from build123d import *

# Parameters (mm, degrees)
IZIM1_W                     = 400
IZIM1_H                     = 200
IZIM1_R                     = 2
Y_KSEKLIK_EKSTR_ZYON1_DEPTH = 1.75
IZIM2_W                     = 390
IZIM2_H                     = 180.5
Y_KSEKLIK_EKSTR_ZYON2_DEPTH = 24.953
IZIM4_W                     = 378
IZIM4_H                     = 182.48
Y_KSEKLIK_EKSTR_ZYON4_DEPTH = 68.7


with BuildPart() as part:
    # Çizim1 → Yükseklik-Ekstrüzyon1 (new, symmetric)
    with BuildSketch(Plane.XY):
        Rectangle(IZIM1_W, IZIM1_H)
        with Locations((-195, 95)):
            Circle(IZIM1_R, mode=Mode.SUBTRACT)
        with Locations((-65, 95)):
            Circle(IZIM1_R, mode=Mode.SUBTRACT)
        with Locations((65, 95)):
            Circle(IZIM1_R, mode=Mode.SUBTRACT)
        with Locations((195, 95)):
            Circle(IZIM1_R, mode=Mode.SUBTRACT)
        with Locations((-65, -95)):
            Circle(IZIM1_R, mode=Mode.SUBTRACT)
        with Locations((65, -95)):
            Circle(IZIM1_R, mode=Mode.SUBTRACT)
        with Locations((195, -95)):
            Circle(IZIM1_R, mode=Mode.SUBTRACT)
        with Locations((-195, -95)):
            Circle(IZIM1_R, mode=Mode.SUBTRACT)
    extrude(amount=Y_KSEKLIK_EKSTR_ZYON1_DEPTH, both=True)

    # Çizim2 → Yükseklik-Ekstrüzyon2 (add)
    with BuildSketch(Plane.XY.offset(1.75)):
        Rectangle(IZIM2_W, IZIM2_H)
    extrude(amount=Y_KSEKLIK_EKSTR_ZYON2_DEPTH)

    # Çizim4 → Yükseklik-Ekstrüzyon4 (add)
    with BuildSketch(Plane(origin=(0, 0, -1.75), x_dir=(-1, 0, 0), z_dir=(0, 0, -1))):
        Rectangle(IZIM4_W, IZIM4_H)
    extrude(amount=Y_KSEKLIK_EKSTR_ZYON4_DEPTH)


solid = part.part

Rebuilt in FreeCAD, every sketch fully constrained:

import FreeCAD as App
import Part
import Sketcher


def add_polygon(sketch, points):
    """Adds a closed chain of lines whose ends are joined by coincident constraints."""
    first, n = sketch.GeometryCount, len(points)
    for a, b in zip(points, points[1:] + points[:1]):
        sketch.addGeometry(Part.LineSegment(App.Vector(*a, 0), App.Vector(*b, 0)), False)
    for i in range(n):
        sketch.addConstraint(Sketcher.Constraint("Coincident", first + i, 2, first + (i + 1) % n, 1))

doc = App.newDocument("Part")
body = doc.addObject("PartDesign::Body", "Body")

sketch1 = doc.addObject("Sketcher::SketchObject", "Sketch")
body.addObject(sketch1)
sketch1.AttachmentSupport = (doc.XY_Plane, [""])
sketch1.MapMode = "FlatFace"
add_polygon(sketch1, [(-200, 100), (-200, -100), (200, -100), (200, 100)])
sketch1.addGeometry(Part.Circle(App.Vector(-195, -95, 0), App.Vector(0, 0, 1), 2), False)
sketch1.addGeometry(Part.Circle(App.Vector(-65, -95, 0), App.Vector(0, 0, 1), 2), False)
sketch1.addGeometry(Part.Circle(App.Vector(65, -95, 0), App.Vector(0, 0, 1), 2), False)
sketch1.addGeometry(Part.Circle(App.Vector(195, -95, 0), App.Vector(0, 0, 1), 2), False)
sketch1.addGeometry(Part.Circle(App.Vector(-195, 95, 0), App.Vector(0, 0, 1), 2), False)
sketch1.addGeometry(Part.Circle(App.Vector(-65, 95, 0), App.Vector(0, 0, 1), 2), False)
sketch1.addGeometry(Part.Circle(App.Vector(65, 95, 0), App.Vector(0, 0, 1), 2), False)
sketch1.addGeometry(Part.Circle(App.Vector(195, 95, 0), App.Vector(0, 0, 1), 2), False)
sketch1.addConstraint(Sketcher.Constraint("Vertical", 0))
sketch1.addConstraint(Sketcher.Constraint("Horizontal", 1))
sketch1.addConstraint(Sketcher.Constraint("Vertical", 2))
sketch1.addConstraint(Sketcher.Constraint("Horizontal", 3))
sketch1.addConstraint(Sketcher.Constraint("Equal", 4, 5))
sketch1.addConstraint(Sketcher.Constraint("Equal", 5, 6))
sketch1.addConstraint(Sketcher.Constraint("Equal", 6, 7))
sketch1.addConstraint(Sketcher.Constraint("Equal", 7, 8))
sketch1.addConstraint(Sketcher.Constraint("Equal", 8, 9))
sketch1.addConstraint(Sketcher.Constraint("Equal", 9, 10))
sketch1.addConstraint(Sketcher.Constraint("Equal", 10, 11))
sketch1.addConstraint(Sketcher.Constraint("Symmetric", 7, 3, 8, 3, -1, 1))
sketch1.addConstraint(Sketcher.Constraint("Symmetric", 6, 3, 9, 3, -1, 1))
sketch1.addConstraint(Sketcher.Constraint("Symmetric", 5, 3, 10, 3, -1, 1))
sketch1.addConstraint(Sketcher.Constraint("Symmetric", 4, 3, 11, 3, -1, 1))
sketch1.addConstraint(Sketcher.Constraint("Symmetric", 0, 2, 2, 2, -1, 1))
sketch1.addConstraint(Sketcher.Constraint("Symmetric", 5, 3, 6, 3, -2))
sketch1.addConstraint(Sketcher.Constraint("Symmetric", 4, 3, 7, 3, -2))
sketch1.addConstraint(Sketcher.Constraint("Horizontal", 4, 3, 5, 3))
sketch1.addConstraint(Sketcher.Constraint("Diameter", 4, 4.0))
sketch1.addConstraint(Sketcher.Constraint("DistanceX", 1, 1, 1, 2, 400.0))
sketch1.addConstraint(Sketcher.Constraint("DistanceY", 0, 2, 0, 1, 200.0))
sketch1.addConstraint(Sketcher.Constraint("DistanceX", 4, 3, -1, 1, 195.0))
sketch1.addConstraint(Sketcher.Constraint("DistanceY", 4, 3, -1, 1, 95.0))
sketch1.addConstraint(Sketcher.Constraint("DistanceX", 5, 3, -1, 1, 65.0))
pad1 = doc.addObject("PartDesign::Pad", "Pad")
body.addObject(pad1)
pad1.Profile = sketch1
pad1.Length = 3.5
pad1.Midplane = True

sketch2 = doc.addObject("Sketcher::SketchObject", "Sketch001")
body.addObject(sketch2)
sketch2.AttachmentSupport = (doc.XY_Plane, [""])
sketch2.MapMode = "FlatFace"
sketch2.AttachmentOffset = App.Placement(App.Vector(0, 0, 1.75), App.Rotation())
add_polygon(sketch2, [(-195, 90.25), (-195, -90.25), (195, -90.25), (195, 90.25)])
sketch2.addConstraint(Sketcher.Constraint("Vertical", 0))
sketch2.addConstraint(Sketcher.Constraint("Horizontal", 1))
sketch2.addConstraint(Sketcher.Constraint("Vertical", 2))
sketch2.addConstraint(Sketcher.Constraint("Horizontal", 3))
sketch2.addConstraint(Sketcher.Constraint("Symmetric", 0, 2, 2, 2, -1, 1))
sketch2.addConstraint(Sketcher.Constraint("DistanceX", 1, 1, 1, 2, 390.0))
sketch2.addConstraint(Sketcher.Constraint("DistanceY", 0, 2, 0, 1, 180.5))
pad2 = doc.addObject("PartDesign::Pad", "Pad001")
body.addObject(pad2)
pad2.Profile = sketch2
pad2.Length = 24.953

sketch3 = doc.addObject("Sketcher::SketchObject", "Sketch002")
body.addObject(sketch3)
sketch3.AttachmentSupport = (doc.XY_Plane, [""])
sketch3.MapMode = "FlatFace"
sketch3.AttachmentOffset = App.Placement(App.Vector(0, 0, -1.75), App.Rotation())
add_polygon(sketch3, [(189, 91.24), (189, -91.24), (-189, -91.24), (-189, 91.24)])
sketch3.addConstraint(Sketcher.Constraint("Vertical", 0))
sketch3.addConstraint(Sketcher.Constraint("Horizontal", 1))
sketch3.addConstraint(Sketcher.Constraint("Vertical", 2))
sketch3.addConstraint(Sketcher.Constraint("Horizontal", 3))
sketch3.addConstraint(Sketcher.Constraint("Symmetric", 0, 2, 2, 2, -1, 1))
sketch3.addConstraint(Sketcher.Constraint("DistanceX", 1, 2, 1, 1, 378.0))
sketch3.addConstraint(Sketcher.Constraint("DistanceY", 0, 2, 0, 1, 182.48))
pad3 = doc.addObject("PartDesign::Pad", "Pad002")
body.addObject(pad3)
pad3.Profile = sketch3
pad3.Length = 68.7
pad3.Reversed = True

doc.recompute()
